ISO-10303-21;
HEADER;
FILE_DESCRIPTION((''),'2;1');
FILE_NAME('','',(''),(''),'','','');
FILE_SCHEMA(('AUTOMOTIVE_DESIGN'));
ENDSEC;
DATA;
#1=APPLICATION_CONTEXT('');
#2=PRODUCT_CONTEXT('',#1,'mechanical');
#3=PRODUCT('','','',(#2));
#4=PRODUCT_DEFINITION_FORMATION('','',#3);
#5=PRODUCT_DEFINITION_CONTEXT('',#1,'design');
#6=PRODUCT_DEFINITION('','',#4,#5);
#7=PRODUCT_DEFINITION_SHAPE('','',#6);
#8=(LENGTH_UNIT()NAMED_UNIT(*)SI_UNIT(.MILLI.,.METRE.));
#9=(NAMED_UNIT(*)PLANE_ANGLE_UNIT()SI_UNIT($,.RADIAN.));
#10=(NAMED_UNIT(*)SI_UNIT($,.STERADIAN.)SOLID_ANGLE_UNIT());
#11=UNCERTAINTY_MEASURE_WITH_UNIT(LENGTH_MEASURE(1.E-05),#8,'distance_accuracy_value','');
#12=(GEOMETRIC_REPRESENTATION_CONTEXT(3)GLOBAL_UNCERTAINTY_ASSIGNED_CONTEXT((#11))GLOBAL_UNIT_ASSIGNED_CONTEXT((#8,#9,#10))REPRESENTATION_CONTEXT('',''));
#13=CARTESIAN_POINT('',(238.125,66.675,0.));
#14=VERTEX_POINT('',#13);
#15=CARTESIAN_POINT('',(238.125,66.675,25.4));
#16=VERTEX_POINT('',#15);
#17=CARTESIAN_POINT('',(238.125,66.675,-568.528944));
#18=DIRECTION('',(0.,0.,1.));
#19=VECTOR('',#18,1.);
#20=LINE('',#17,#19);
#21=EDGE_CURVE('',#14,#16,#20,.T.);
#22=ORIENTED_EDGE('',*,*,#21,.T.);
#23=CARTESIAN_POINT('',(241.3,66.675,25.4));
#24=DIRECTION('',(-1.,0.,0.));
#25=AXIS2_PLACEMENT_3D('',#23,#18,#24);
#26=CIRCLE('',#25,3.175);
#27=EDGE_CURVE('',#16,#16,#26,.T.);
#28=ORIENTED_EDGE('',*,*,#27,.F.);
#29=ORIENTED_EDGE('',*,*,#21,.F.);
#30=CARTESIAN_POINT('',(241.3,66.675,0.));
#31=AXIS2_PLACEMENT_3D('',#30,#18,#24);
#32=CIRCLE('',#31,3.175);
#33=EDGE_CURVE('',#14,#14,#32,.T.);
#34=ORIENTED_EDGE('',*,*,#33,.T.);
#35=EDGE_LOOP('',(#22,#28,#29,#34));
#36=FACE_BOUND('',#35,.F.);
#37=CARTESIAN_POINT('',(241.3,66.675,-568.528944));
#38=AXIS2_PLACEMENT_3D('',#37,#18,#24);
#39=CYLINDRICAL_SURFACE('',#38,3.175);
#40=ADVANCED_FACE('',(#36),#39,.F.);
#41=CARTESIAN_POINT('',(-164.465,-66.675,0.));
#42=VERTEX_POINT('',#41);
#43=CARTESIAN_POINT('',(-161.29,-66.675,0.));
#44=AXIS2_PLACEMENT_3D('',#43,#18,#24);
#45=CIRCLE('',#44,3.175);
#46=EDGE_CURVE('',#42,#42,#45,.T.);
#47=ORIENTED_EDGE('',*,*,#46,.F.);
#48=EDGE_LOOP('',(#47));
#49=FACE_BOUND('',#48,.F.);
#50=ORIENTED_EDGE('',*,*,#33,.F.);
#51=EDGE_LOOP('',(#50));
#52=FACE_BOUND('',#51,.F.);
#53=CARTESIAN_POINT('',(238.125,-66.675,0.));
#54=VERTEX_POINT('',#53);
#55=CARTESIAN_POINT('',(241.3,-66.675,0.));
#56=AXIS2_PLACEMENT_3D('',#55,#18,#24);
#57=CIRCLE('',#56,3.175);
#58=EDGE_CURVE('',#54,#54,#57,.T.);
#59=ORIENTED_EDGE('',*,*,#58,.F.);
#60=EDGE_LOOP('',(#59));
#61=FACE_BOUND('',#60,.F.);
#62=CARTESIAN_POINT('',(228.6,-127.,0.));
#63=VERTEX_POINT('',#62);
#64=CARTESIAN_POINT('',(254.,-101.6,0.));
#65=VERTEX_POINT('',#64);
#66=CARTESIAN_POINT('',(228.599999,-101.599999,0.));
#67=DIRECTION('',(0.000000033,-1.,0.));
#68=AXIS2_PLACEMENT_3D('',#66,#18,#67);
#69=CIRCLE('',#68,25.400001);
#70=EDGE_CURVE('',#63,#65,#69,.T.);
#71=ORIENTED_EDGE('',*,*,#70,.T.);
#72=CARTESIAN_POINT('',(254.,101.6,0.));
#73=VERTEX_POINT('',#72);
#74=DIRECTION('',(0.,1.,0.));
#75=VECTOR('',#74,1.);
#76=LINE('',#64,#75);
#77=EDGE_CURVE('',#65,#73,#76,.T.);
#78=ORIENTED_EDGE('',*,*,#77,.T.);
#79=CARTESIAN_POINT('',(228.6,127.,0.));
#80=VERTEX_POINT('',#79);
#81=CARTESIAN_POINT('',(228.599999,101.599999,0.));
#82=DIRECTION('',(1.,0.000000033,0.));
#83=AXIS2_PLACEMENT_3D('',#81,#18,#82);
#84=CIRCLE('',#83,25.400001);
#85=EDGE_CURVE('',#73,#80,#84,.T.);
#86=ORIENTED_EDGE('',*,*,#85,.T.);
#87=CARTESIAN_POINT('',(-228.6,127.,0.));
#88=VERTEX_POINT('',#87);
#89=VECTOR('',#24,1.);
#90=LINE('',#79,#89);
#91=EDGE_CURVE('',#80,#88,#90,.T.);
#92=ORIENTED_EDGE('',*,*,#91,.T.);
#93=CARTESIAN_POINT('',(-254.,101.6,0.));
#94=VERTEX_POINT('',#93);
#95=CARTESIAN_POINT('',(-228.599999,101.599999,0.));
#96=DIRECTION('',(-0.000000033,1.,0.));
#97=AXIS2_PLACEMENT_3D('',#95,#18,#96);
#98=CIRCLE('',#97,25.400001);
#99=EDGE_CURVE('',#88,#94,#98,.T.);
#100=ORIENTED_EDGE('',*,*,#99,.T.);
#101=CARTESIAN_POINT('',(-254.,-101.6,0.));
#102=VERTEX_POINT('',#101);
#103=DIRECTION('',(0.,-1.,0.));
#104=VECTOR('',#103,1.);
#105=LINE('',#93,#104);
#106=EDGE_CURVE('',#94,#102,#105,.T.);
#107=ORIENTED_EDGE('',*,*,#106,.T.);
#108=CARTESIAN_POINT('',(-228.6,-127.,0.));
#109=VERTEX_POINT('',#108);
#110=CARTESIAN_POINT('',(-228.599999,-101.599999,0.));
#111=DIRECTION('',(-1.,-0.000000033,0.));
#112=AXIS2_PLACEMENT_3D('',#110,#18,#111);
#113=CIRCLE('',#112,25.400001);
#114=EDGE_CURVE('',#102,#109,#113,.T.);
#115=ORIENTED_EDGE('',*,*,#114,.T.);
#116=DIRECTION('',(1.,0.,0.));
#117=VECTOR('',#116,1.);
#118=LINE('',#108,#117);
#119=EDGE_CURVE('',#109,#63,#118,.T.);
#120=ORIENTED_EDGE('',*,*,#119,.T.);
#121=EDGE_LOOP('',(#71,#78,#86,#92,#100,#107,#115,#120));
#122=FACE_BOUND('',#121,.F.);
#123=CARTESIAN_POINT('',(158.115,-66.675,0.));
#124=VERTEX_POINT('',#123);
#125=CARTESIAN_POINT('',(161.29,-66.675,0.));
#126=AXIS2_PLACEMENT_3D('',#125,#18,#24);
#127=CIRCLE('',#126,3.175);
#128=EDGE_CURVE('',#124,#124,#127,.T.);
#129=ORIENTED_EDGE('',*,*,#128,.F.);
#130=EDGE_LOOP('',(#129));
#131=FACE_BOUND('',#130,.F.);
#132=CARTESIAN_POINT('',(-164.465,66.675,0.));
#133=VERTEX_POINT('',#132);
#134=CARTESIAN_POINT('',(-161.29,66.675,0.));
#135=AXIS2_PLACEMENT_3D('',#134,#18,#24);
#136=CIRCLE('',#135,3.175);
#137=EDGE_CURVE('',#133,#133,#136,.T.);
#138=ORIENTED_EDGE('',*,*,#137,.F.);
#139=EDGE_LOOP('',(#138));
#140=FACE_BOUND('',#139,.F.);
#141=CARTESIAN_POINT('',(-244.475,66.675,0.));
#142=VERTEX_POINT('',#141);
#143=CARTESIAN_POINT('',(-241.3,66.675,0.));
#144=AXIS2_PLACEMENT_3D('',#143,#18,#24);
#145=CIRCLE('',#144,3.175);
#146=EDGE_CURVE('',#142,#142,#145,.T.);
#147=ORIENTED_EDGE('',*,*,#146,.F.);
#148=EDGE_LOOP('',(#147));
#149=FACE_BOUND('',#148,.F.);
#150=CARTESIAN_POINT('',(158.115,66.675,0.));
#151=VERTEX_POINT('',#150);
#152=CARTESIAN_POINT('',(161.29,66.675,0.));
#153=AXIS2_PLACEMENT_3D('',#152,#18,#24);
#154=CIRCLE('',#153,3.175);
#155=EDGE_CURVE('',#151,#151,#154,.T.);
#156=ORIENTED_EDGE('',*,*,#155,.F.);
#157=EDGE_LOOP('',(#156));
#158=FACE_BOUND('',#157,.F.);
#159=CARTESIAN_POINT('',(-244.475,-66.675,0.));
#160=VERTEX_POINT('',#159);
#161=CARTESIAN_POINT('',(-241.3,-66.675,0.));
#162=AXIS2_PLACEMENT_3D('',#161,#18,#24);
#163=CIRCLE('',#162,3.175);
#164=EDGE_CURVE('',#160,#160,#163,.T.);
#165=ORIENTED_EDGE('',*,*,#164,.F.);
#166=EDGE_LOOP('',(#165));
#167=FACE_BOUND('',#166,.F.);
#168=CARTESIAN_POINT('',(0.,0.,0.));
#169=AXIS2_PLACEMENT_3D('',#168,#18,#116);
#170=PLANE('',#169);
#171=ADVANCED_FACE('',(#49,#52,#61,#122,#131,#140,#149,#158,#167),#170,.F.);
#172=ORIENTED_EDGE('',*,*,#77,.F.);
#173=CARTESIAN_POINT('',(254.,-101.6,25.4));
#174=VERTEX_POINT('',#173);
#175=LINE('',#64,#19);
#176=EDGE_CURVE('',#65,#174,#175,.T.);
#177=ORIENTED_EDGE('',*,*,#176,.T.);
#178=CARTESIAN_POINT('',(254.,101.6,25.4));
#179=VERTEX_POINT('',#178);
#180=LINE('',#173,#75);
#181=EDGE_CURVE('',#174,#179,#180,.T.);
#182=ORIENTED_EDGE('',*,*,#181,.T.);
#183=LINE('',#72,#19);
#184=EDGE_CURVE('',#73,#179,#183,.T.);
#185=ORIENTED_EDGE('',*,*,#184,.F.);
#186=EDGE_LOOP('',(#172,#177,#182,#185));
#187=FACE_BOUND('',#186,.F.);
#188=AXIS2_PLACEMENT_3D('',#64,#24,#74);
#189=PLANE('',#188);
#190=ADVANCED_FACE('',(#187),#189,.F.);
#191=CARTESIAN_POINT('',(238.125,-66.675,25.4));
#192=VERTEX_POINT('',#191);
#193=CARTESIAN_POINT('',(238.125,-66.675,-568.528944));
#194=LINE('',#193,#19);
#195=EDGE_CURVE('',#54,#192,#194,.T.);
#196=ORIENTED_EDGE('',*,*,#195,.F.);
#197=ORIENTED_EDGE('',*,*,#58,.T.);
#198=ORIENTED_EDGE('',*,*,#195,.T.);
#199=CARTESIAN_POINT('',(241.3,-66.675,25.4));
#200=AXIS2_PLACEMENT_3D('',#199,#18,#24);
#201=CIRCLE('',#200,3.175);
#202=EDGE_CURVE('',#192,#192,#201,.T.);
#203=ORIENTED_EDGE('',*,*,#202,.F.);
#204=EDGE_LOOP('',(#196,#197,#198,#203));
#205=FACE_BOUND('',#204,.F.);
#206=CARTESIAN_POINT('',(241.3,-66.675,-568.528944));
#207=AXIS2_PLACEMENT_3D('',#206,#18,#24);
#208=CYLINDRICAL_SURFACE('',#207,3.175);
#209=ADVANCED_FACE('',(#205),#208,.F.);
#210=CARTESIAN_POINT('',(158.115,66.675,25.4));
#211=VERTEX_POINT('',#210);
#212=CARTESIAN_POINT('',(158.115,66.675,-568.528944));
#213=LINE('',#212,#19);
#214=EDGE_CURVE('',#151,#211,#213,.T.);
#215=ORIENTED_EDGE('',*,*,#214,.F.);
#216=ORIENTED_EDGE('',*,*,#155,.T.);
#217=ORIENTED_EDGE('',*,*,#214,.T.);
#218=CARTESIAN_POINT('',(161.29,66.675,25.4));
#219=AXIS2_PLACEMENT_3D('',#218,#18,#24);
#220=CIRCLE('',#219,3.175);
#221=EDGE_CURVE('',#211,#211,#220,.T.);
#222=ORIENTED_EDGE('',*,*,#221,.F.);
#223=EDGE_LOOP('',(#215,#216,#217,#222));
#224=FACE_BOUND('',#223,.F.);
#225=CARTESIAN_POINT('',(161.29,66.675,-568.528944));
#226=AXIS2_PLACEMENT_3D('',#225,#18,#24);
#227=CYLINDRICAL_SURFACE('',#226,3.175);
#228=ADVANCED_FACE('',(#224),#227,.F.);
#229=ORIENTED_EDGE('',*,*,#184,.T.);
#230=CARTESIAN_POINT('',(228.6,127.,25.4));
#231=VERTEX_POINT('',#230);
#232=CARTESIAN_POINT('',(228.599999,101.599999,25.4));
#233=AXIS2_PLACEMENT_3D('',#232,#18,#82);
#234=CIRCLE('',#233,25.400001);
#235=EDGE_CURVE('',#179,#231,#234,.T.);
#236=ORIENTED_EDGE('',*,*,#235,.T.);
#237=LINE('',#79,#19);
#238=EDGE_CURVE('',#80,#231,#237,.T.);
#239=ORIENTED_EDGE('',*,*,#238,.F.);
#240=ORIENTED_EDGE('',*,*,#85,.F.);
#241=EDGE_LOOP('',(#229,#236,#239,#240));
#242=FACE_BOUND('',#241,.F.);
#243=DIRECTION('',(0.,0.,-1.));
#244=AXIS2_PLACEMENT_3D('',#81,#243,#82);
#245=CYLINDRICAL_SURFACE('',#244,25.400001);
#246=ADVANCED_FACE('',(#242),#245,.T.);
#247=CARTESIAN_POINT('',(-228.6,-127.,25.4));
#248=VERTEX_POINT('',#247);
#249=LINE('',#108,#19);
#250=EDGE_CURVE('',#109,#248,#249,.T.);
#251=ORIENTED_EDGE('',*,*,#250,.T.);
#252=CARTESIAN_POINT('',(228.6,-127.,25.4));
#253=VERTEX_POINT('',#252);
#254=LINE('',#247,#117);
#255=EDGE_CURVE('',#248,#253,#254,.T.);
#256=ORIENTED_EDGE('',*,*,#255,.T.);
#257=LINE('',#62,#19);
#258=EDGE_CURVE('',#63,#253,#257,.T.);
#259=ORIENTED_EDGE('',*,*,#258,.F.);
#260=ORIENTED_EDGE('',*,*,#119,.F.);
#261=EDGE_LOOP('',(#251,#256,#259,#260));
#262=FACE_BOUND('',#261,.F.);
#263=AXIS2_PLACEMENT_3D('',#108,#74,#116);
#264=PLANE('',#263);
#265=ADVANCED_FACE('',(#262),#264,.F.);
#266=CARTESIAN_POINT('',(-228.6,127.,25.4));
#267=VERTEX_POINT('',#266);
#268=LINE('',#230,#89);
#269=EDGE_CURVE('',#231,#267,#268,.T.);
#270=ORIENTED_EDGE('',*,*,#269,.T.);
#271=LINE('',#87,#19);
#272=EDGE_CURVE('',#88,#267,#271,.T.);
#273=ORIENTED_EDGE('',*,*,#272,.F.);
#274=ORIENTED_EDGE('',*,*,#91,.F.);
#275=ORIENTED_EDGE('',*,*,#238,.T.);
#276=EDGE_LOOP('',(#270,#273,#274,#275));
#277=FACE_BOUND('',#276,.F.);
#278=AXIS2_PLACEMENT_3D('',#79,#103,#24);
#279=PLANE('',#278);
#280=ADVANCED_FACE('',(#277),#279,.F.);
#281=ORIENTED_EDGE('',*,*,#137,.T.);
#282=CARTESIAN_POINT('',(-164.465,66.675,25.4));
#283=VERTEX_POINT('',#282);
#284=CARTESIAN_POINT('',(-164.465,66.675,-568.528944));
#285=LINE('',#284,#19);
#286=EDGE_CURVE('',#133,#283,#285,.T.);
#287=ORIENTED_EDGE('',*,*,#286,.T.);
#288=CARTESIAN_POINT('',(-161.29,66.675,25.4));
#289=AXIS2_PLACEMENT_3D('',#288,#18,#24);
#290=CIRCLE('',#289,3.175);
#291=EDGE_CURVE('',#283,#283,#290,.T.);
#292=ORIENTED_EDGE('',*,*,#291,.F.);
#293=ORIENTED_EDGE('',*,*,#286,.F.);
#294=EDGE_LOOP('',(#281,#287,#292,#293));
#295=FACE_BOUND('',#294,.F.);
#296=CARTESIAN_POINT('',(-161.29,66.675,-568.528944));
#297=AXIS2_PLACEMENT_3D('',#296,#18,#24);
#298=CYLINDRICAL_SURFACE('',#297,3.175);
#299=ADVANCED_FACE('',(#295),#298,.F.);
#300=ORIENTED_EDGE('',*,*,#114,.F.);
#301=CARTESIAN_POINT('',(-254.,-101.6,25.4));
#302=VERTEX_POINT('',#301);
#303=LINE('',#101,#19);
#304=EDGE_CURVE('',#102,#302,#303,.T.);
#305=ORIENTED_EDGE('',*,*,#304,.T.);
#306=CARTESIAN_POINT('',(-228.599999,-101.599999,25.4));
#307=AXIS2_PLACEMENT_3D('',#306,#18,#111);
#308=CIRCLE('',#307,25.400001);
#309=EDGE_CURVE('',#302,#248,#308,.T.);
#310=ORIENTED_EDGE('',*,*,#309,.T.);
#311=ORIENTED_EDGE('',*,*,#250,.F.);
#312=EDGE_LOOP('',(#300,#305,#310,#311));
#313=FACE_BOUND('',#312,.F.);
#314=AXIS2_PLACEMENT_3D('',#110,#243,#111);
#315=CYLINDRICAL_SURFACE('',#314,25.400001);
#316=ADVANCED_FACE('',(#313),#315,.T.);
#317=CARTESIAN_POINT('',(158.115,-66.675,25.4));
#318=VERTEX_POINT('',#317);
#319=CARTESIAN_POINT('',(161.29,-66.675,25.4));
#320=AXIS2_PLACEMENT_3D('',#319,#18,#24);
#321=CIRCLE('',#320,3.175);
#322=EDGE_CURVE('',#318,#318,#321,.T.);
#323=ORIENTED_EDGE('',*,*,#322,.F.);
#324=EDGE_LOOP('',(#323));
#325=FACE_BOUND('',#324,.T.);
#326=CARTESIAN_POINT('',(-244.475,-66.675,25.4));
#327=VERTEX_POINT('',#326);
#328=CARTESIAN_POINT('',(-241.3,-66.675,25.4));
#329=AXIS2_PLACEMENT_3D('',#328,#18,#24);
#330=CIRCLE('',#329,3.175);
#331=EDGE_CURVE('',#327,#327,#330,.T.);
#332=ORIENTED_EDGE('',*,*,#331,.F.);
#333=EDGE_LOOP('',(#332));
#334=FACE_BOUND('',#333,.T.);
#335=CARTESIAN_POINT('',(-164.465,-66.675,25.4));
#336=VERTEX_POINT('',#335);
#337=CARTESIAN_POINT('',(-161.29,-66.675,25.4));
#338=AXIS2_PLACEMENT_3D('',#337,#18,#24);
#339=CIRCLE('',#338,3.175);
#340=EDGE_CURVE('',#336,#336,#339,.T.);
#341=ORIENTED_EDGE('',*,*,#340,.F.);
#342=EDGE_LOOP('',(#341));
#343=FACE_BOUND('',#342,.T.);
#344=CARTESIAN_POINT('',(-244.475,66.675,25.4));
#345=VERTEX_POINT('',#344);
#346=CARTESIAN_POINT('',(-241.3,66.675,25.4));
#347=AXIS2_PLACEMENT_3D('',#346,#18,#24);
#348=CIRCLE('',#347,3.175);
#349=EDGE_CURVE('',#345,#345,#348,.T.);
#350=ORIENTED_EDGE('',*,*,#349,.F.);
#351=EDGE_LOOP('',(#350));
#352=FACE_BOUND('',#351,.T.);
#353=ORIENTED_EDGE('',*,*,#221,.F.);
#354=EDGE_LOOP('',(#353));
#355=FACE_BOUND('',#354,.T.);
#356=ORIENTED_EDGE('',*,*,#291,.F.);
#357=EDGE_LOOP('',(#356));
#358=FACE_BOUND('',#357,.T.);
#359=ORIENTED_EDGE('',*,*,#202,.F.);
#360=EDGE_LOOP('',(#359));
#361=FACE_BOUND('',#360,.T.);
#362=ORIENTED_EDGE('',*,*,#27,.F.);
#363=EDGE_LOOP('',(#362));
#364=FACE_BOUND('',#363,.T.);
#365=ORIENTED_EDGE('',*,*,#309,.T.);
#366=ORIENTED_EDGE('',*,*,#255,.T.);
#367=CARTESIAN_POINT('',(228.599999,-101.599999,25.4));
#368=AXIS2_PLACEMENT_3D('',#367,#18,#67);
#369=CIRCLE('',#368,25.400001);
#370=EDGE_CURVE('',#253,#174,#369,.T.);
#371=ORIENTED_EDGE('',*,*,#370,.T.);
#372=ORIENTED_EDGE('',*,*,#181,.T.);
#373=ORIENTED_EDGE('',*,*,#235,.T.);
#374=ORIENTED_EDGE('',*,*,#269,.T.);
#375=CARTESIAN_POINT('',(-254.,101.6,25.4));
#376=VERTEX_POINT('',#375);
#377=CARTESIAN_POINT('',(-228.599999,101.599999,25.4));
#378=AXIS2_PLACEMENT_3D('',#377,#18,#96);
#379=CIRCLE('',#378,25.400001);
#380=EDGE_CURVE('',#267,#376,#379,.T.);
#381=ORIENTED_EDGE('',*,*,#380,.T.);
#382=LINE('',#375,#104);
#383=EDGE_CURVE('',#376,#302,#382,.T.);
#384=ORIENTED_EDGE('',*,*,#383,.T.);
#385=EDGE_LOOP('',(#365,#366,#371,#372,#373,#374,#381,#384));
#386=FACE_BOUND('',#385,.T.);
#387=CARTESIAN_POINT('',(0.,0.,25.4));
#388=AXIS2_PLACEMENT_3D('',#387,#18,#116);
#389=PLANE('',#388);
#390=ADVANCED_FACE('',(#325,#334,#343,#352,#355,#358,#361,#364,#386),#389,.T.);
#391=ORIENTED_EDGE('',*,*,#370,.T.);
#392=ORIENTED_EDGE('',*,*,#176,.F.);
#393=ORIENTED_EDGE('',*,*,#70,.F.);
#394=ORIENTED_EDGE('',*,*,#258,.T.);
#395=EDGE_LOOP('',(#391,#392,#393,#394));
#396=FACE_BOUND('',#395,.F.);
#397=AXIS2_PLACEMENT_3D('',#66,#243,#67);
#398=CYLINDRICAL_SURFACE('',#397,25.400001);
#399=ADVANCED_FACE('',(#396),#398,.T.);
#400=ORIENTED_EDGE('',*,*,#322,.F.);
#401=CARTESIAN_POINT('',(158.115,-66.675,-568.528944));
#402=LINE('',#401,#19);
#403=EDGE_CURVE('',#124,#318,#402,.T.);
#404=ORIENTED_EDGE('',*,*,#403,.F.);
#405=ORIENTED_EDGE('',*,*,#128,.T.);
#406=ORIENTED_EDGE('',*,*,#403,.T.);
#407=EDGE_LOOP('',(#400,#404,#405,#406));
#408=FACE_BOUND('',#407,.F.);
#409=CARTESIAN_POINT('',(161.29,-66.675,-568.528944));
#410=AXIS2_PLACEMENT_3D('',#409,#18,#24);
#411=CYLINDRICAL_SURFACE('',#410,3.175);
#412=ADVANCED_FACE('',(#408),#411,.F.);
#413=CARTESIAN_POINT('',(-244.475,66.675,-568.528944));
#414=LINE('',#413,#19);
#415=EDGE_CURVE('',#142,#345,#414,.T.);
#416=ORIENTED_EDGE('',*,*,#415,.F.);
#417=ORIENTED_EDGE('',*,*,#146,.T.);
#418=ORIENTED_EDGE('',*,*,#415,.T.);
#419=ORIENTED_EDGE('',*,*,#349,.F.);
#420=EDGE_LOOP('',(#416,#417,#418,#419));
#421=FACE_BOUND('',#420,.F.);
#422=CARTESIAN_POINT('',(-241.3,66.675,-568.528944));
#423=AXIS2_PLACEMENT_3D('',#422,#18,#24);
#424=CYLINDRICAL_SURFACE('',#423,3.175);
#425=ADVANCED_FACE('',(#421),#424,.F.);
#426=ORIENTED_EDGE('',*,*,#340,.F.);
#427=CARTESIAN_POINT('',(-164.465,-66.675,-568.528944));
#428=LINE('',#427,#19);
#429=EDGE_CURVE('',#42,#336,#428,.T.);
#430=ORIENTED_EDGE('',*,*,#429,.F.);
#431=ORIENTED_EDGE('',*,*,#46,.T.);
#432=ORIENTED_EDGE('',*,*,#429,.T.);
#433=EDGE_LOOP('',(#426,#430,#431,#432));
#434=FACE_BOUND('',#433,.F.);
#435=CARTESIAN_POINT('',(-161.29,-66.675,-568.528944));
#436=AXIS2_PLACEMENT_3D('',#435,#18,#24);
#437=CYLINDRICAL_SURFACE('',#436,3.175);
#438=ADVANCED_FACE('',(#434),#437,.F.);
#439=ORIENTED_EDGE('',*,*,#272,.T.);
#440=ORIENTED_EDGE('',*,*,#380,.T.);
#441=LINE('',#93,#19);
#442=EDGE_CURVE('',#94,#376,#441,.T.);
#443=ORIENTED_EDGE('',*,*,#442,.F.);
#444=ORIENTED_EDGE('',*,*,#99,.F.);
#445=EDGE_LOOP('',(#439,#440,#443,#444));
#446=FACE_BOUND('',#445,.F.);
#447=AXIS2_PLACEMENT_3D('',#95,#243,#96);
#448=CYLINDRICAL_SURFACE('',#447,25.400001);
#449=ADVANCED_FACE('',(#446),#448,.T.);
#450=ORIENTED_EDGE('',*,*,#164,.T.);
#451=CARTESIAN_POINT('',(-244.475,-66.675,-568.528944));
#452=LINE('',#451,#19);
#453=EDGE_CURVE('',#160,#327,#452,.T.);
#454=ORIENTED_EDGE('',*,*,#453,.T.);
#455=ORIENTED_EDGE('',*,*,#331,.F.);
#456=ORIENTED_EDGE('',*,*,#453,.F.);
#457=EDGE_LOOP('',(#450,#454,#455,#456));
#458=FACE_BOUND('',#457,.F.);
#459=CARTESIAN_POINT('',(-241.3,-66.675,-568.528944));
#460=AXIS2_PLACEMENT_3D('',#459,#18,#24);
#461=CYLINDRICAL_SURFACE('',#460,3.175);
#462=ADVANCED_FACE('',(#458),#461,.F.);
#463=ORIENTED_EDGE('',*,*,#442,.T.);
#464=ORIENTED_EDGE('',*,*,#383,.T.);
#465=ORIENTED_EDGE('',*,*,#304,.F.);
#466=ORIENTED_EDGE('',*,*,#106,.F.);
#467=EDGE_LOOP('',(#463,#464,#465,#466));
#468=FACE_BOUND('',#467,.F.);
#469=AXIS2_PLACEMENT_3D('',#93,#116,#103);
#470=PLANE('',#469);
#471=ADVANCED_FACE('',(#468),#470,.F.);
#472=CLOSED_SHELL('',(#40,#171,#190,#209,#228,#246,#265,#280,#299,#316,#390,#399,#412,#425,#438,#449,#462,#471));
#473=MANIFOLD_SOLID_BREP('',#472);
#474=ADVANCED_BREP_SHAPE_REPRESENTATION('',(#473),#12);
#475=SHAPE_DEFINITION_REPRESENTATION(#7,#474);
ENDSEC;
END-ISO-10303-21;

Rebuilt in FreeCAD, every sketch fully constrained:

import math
import FreeCAD as App
import Part
import Sketcher
from FreeCAD import Vector
Q = App.Units.Quantity

doc = App.newDocument("Part")
body = doc.addObject("PartDesign::Body", "Body")

sketch1 = body.newObject("Sketcher::SketchObject", "Sketch")
sketch1.AttachmentSupport = (doc.getObject("XY_Plane"), [""])
sketch1.MapMode = "FlatFace"
sketch1.addGeometry([
    Part.LineSegment(Vector(-229, -127, 0), Vector(229, -127, 0)),
    Part.ArcOfCircle(Part.Circle(Vector(229, -102, 0), Vector(0, 0, 1), 25), math.radians(-90), math.radians(0)),
    Part.LineSegment(Vector(254, -102, 0), Vector(254, 102, 0)),
    Part.ArcOfCircle(Part.Circle(Vector(229, 102, 0), Vector(0, 0, 1), 25), math.radians(0), math.radians(90)),
    Part.LineSegment(Vector(229, 127, 0), Vector(-229, 127, 0)),
    Part.ArcOfCircle(Part.Circle(Vector(-229, 102, 0), Vector(0, 0, 1), 25), math.radians(90), math.radians(180)),
    Part.LineSegment(Vector(-254, 102, 0), Vector(-254, -102, 0)),
    Part.ArcOfCircle(Part.Circle(Vector(-229, -102, 0), Vector(0, 0, 1), 25), math.radians(-180), math.radians(-90)),
], False)
sketch1.addConstraint([
    Sketcher.Constraint("Tangent", 0, 2, 1, 1),
    Sketcher.Constraint("Tangent", 1, 2, 2, 1),
    Sketcher.Constraint("Tangent", 2, 2, 3, 1),
    Sketcher.Constraint("Tangent", 3, 2, 4, 1),
    Sketcher.Constraint("Tangent", 4, 2, 5, 1),
    Sketcher.Constraint("Tangent", 5, 2, 6, 1),
    Sketcher.Constraint("Tangent", 6, 2, 7, 1),
    Sketcher.Constraint("Tangent", 7, 2, 0, 1),
    Sketcher.Constraint("Horizontal", 0),
    Sketcher.Constraint("Vertical", 2),
    Sketcher.Constraint("Horizontal", 4),
    Sketcher.Constraint("Vertical", 6),
    Sketcher.Constraint("Equal", 1, 3),
    Sketcher.Constraint("Equal", 3, 5),
    Sketcher.Constraint("Equal", 5, 7),
    Sketcher.Constraint("Symmetric", 1, 3, 5, 3, -1, 1),
    Sketcher.Constraint("Radius", 1, Q("1 in")),
    Sketcher.Constraint("DistanceX", 0, 1, 0, 2, Q("18 in")),
    Sketcher.Constraint("DistanceY", 2, 1, 2, 2, Q("8 in")),
])
pad1 = body.newObject("PartDesign::Pad", "Pad")
pad1.Profile = sketch1
pad1.Length = Q("1 in")

sketch2 = body.newObject("Sketcher::SketchObject", "Sketch001")
sketch2.AttachmentSupport = (doc.getObject("XY_Plane"), [""])
sketch2.MapMode = "FlatFace"
sketch2.addGeometry([
    Part.Circle(Vector(-241.3, 66.7, 0), Vector(0, 0, 1), 3.2),
    Part.Circle(Vector(-161.3, 66.7, 0), Vector(0, 0, 1), 3.2),
    Part.Circle(Vector(-241.3, -66.7, 0), Vector(0, 0, 1), 3.2),
    Part.Circle(Vector(-161.3, -66.7, 0), Vector(0, 0, 1), 3.2),
    Part.Circle(Vector(161.3, -66.7, 0), Vector(0, 0, 1), 3.2),
    Part.Circle(Vector(241.3, -66.7, 0), Vector(0, 0, 1), 3.2),
    Part.Circle(Vector(241.3, 66.7, 0), Vector(0, 0, 1), 3.2),
    Part.Circle(Vector(161.3, 66.7, 0), Vector(0, 0, 1), 3.2),
], False)
sketch2.addConstraint([
    Sketcher.Constraint("Equal", 0, 1),
    Sketcher.Constraint("Equal", 1, 2),
    Sketcher.Constraint("Equal", 2, 3),
    Sketcher.Constraint("Equal", 3, 4),
    Sketcher.Constraint("Equal", 4, 5),
    Sketcher.Constraint("Equal", 5, 6),
    Sketcher.Constraint("Equal", 6, 7),
    Sketcher.Constraint("Symmetric", 1, 3, 4, 3, -1, 1),
    Sketcher.Constraint("Symmetric", 0, 3, 5, 3, -1, 1),
    Sketcher.Constraint("Symmetric", 2, 3, 6, 3, -1, 1),
    Sketcher.Constraint("Symmetric", 3, 3, 7, 3, -1, 1),
    Sketcher.Constraint("Symmetric", 3, 3, 4, 3, -2),
    Sketcher.Constraint("Symmetric", 2, 3, 5, 3, -2),
    Sketcher.Constraint("Horizontal", 0, 3, 1, 3),
    Sketcher.Constraint("Diameter", 0, Q("0.25 in")),
    Sketcher.Constraint("DistanceX", 2, 3, 5, 3, Q("19 in")),
    Sketcher.Constraint("DistanceX", 3, 3, 4, 3, Q("12.7 in")),
    Sketcher.Constraint("DistanceY", 2, 3, 0, 3, Q("5.25 in")),
])
doc.recompute()
hole = body.newObject("PartDesign::Hole", "Hole")
hole.Profile = sketch2
hole.ThreadType = "None"
hole.Diameter = Q("0.25 in")
hole.DepthType = "ThroughAll"
hole.Reversed = True

doc.recompute()
